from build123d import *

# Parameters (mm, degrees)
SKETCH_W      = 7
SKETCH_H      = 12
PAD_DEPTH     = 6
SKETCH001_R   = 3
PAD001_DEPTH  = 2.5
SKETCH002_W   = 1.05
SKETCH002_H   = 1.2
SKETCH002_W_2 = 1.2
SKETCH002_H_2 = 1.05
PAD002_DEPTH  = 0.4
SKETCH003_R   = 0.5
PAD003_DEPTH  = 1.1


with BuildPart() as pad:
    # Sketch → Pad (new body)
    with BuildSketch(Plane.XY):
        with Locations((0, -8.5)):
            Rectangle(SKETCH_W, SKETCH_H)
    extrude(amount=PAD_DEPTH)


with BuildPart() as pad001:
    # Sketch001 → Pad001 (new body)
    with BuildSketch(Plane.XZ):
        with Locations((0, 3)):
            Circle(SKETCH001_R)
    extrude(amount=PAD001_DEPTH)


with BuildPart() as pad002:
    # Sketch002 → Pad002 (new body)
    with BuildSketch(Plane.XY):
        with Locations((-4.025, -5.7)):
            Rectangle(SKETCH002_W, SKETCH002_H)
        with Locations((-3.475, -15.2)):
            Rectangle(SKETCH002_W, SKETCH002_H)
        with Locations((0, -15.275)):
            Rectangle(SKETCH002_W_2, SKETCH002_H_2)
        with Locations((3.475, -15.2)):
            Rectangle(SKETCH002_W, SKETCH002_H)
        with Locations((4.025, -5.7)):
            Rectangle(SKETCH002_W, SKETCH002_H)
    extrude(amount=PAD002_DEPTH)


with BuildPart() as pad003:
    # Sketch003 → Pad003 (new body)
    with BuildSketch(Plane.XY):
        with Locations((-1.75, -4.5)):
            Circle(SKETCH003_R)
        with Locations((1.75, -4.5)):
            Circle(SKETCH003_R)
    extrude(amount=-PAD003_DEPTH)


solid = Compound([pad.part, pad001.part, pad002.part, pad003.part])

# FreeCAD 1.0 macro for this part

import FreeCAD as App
import Part
import Sketcher

V = App.Vector
Q = App.Units.Quantity

doc = App.newDocument("Part")
body = doc.addObject("PartDesign::Body", "Body")

sketch1 = body.newObject("Sketcher::SketchObject", "Sketch")
sketch1.AttachmentSupport = (doc.getObject("XY_Plane"), [""])
sketch1.MapMode = "FlatFace"
sketch1.addGeometry([
    Part.LineSegment(V(-4, -2, 0), V(-4, -14, 0)),
    Part.LineSegment(V(-4, -14, 0), V(4, -14, 0)),
    Part.LineSegment(V(4, -14, 0), V(4, -2, 0)),
    Part.LineSegment(V(4, -2, 0), V(-4, -2, 0)),
], False)
sketch1.addConstraint([
    Sketcher.Constraint("Coincident", 0, 2, 1, 1),
    Sketcher.Constraint("Coincident", 1, 2, 2, 1),
    Sketcher.Constraint("Coincident", 2, 2, 3, 1),
    Sketcher.Constraint("Coincident", 3, 2, 0, 1),
    Sketcher.Constraint("Vertical", 0),
    Sketcher.Constraint("Horizontal", 1),
    Sketcher.Constraint("Vertical", 2),
    Sketcher.Constraint("Horizontal", 3),
    Sketcher.Constraint("DistanceX", 1, 1, 1, 2, Q("7 mm")),
    Sketcher.Constraint("DistanceY", 0, 2, 0, 1, Q("12 mm")),
    Sketcher.Constraint("DistanceX", 0, 2, -1, 1, Q("3.5 mm")),
    Sketcher.Constraint("DistanceY", 0, 2, -1, 1, Q("14.5 mm")),
])
pad1 = body.newObject("PartDesign::Pad", "Pad")
pad1.Profile = sketch1
pad1.Length = 6
body2 = doc.addObject("PartDesign::Body", "Body001")

sketch2 = body2.newObject("Sketcher::SketchObject", "Sketch001")
sketch2.AttachmentSupport = (doc.getObject("XZ_Plane001"), [""])
sketch2.MapMode = "FlatFace"
sketch2.addGeometry(Part.Circle(V(0, 3, 0), V(0, 0, 1), 3), False)
sketch2.addConstraint([
    Sketcher.Constraint("PointOnObject", 0, 3, -2),
    Sketcher.Constraint("Diameter", 0, Q("6 mm")),
    Sketcher.Constraint("DistanceY", -1, 1, 0, 3, Q("3 mm")),
])
pad2 = body2.newObject("PartDesign::Pad", "Pad001")
pad2.Profile = sketch2
pad2.Length = 2.5
body3 = doc.addObject("PartDesign::Body", "Body002")
body3.AllowCompound = True

sketch3 = body3.newObject("Sketcher::SketchObject", "Sketch002")
sketch3.AttachmentSupport = (doc.getObject("XY_Plane002"), [""])
sketch3.MapMode = "FlatFace"
sketch3.addGeometry([
    Part.LineSegment(V(-4.5, -5.1, 0), V(-4.5, -6.3, 0)),
    Part.LineSegment(V(-4.5, -6.3, 0), V(-3.5, -6.3, 0)),
    Part.LineSegment(V(-3.5, -6.3, 0), V(-3.5, -5.1, 0)),
    Part.LineSegment(V(-3.5, -5.1, 0), V(-4.5, -5.1, 0)),
    Part.LineSegment(V(-4, -14.6, 0), V(-4, -15.8, 0)),
    Part.LineSegment(V(-4, -15.8, 0), V(-3, -15.8, 0)),
    Part.LineSegment(V(-3, -15.8, 0), V(-3, -14.6, 0)),
    Part.LineSegment(V(-3, -14.6, 0), V(-4, -14.6, 0)),
    Part.LineSegment(V(-0.6, -14.8, 0), V(-0.6, -15.8, 0)),
    Part.LineSegment(V(-0.6, -15.8, 0), V(0.6, -15.8, 0)),
    Part.LineSegment(V(0.6, -15.8, 0), V(0.6, -14.8, 0)),
    Part.LineSegment(V(0.6, -14.8, 0), V(-0.6, -14.8, 0)),
    Part.LineSegment(V(3, -14.6, 0), V(3, -15.8, 0)),
    Part.LineSegment(V(3, -15.8, 0), V(4, -15.8, 0)),
    Part.LineSegment(V(4, -15.8, 0), V(4, -14.6, 0)),
    Part.LineSegment(V(4, -14.6, 0), V(3, -14.6, 0)),
    Part.LineSegment(V(3.5, -5.1, 0), V(3.5, -6.3, 0)),
    Part.LineSegment(V(3.5, -6.3, 0), V(4.5, -6.3, 0)),
    Part.LineSegment(V(4.5, -6.3, 0), V(4.5, -5.1, 0)),
    Part.LineSegment(V(4.5, -5.1, 0), V(3.5, -5.1, 0)),
], False)
sketch3.addConstraint([
    Sketcher.Constraint("Coincident", 0, 2, 1, 1),
    Sketcher.Constraint("Coincident", 1, 2, 2, 1),
    Sketcher.Constraint("Coincident", 2, 2, 3, 1),
    Sketcher.Constraint("Coincident", 3, 2, 0, 1),
    Sketcher.Constraint("Coincident", 4, 2, 5, 1),
    Sketcher.Constraint("Coincident", 5, 2, 6, 1),
    Sketcher.Constraint("Coincident", 6, 2, 7, 1),
    Sketcher.Constraint("Coincident", 7, 2, 4, 1),
    Sketcher.Constraint("Coincident", 8, 2, 9, 1),
    Sketcher.Constraint("Coincident", 9, 2, 10, 1),
    Sketcher.Constraint("Coincident", 10, 2, 11, 1),
    Sketcher.Constraint("Coincident", 11, 2, 8, 1),
    Sketcher.Constraint("Coincident", 12, 2, 13, 1),
    Sketcher.Constraint("Coincident", 13, 2, 14, 1),
    Sketcher.Constraint("Coincident", 14, 2, 15, 1),
    Sketcher.Constraint("Coincident", 15, 2, 12, 1),
    Sketcher.Constraint("Coincident", 16, 2, 17, 1),
    Sketcher.Constraint("Coincident", 17, 2, 18, 1),
    Sketcher.Constraint("Coincident", 18, 2, 19, 1),
    Sketcher.Constraint("Coincident", 19, 2, 16, 1),
    Sketcher.Constraint("Vertical", 0),
    Sketcher.Constraint("Horizontal", 1),
    Sketcher.Constraint("Vertical", 2),
    Sketcher.Constraint("Horizontal", 3),
    Sketcher.Constraint("Vertical", 4),
    Sketcher.Constraint("Horizontal", 5),
    Sketcher.Constraint("Vertical", 6),
    Sketcher.Constraint("Horizontal", 7),
    Sketcher.Constraint("Vertical", 8),
    Sketcher.Constraint("Horizontal", 9),
    Sketcher.Constraint("Vertical", 10),
    Sketcher.Constraint("Horizontal", 11),
    Sketcher.Constraint("Vertical", 12),
    Sketcher.Constraint("Horizontal", 13),
    Sketcher.Constraint("Vertical", 14),
    Sketcher.Constraint("Horizontal", 15),
    Sketcher.Constraint("Vertical", 16),
    Sketcher.Constraint("Horizontal", 17),
    Sketcher.Constraint("Vertical", 18),
    Sketcher.Constraint("Horizontal", 19),
    Sketcher.Constraint("Symmetric", 5, 2, 12, 2, -2),
    Sketcher.Constraint("Symmetric", 7, 2, 14, 2, -2),
    Sketcher.Constraint("Symmetric", 1, 2, 16, 2, -2),
    Sketcher.Constraint("Symmetric", 3, 2, 18, 2, -2),
    Sketcher.Constraint("Horizontal", 5, 2, 8, 2),
    Sketcher.Constraint("Equal", 3, 5),
    Sketcher.Constraint("Equal", 11, 0),
    Sketcher.Constraint("Equal", 2, 4),
    Sketcher.Constraint("Equal", 19, 8),
    Sketcher.Constraint("DistanceX", 9, 1, 9, 2, Q("1.2 mm")),
    Sketcher.Constraint("DistanceX", 4, 2, -1, 1, Q("4 mm")),
    Sketcher.Constraint("DistanceX", 1, 2, 16, 2, Q("7 mm")),
    Sketcher.Constraint("DistanceX", 1, 1, 1, 2, Q("1.05 mm")),
    Sketcher.Constraint("DistanceY", 0, 2, -1, 1, Q("6.3 mm")),
    Sketcher.Constraint("DistanceY", 4, 2, -1, 1, Q("15.8 mm")),
    Sketcher.Constraint("DistanceX", 8, 2, -1, 1, Q("0.6 mm")),
])
pad3 = body3.newObject("PartDesign::Pad", "Pad002")
pad3.Profile = sketch3
pad3.Length = 0.4
body4 = doc.addObject("PartDesign::Body", "Body003")
body4.AllowCompound = True

sketch4 = body4.newObject("Sketcher::SketchObject", "Sketch003")
sketch4.AttachmentSupport = (doc.getObject("XY_Plane003"), [""])
sketch4.MapMode = "FlatFace"
sketch4.addGeometry([
    Part.Circle(V(-1.8, -4.5, 0), V(0, 0, 1), 0.5),
    Part.Circle(V(1.8, -4.5, 0), V(0, 0, 1), 0.5),
], False)
sketch4.addConstraint([
    Sketcher.Constraint("Equal", 0, 1),
    Sketcher.Constraint("Symmetric", 0, 3, 1, 3, -2),
    Sketcher.Constraint("Diameter", 0, Q("1 mm")),
    Sketcher.Constraint("DistanceY", 0, 3, -1, 1, Q("4.5 mm")),
    Sketcher.Constraint("DistanceX", 0, 3, 1, 3, Q("3.5 mm")),
])
pad4 = body4.newObject("PartDesign::Pad", "Pad003")
pad4.Profile = sketch4
pad4.Length = 1.1
pad4.Reversed = True

doc.recompute()
